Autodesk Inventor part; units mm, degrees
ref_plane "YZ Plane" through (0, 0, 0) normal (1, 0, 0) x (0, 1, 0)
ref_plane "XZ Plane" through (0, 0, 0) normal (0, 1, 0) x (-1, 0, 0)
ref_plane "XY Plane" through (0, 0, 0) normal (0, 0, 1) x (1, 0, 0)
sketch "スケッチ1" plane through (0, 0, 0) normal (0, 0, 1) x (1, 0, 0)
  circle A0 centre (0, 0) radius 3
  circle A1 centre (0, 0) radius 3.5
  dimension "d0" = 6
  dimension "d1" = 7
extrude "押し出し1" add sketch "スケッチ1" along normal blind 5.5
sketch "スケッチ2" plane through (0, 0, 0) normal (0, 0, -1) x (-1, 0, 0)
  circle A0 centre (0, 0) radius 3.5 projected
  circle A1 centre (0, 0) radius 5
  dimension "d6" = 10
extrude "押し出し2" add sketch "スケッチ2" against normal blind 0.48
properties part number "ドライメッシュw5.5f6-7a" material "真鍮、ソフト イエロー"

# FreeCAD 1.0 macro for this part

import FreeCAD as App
import Part
import Sketcher

V = App.Vector
Q = App.Units.Quantity

doc = App.newDocument("Part")
params = doc.addObject("Spreadsheet::Sheet", "Params")
for row, (alias, value) in enumerate([
    ("sketch1_diameter", "7 mm"),
    ("sketch1_diameter2", "6 mm"),
    ("pad1_length", "5.5 mm"),
    ("sketch2_diameter", "10 mm"),
    ("sketch2_diameter2", "7 mm"),
    ("pad2_length", "0.48 mm"),
], start=1):
    params.set(f"A{row}", alias)
    params.set(f"B{row}", "=" + value)
    params.setAlias(f"B{row}", alias)

body = doc.addObject("PartDesign::Body", "Body")

sketch1 = body.newObject("Sketcher::SketchObject", "Sketch")
sketch1.AttachmentSupport = (doc.getObject("XY_Plane"), [""])
sketch1.MapMode = "FlatFace"
sketch1.addGeometry(Part.Circle(V(0, 0, 0), V(0, 0, 1), 3.5), False)
sketch1.addGeometry(Part.Circle(V(0, 0, 0), V(0, 0, 1), 3), False)
sketch1.addConstraint(Sketcher.Constraint("Coincident", 0, 3, -1, 1))
sketch1.addConstraint(Sketcher.Constraint("Coincident", 1, 3, -1, 1))
sketch1.addConstraint(Sketcher.Constraint("Diameter", 0, Q("7 mm")))
sketch1.addConstraint(Sketcher.Constraint("Diameter", 1, Q("6 mm")))
sketch1.setExpression("Constraints[2]", "Params.sketch1_diameter")
sketch1.setExpression("Constraints[3]", "Params.sketch1_diameter2")
pad1 = body.newObject("PartDesign::Pad", "Pad")
pad1.Profile = sketch1
pad1.setExpression("Length", "Params.pad1_length")

sketch2 = body.newObject("Sketcher::SketchObject", "Sketch001")
sketch2.AttachmentSupport = (doc.getObject("XY_Plane"), [""])
sketch2.MapMode = "FlatFace"
sketch2.addGeometry(Part.Circle(V(0, 0, 0), V(0, 0, 1), 5), False)
sketch2.addGeometry(Part.Circle(V(0, 0, 0), V(0, 0, 1), 3.5), False)
sketch2.addConstraint(Sketcher.Constraint("Coincident", 0, 3, -1, 1))
sketch2.addConstraint(Sketcher.Constraint("Coincident", 1, 3, -1, 1))
sketch2.addConstraint(Sketcher.Constraint("Diameter", 0, Q("10 mm")))
sketch2.addConstraint(Sketcher.Constraint("Diameter", 1, Q("7 mm")))
sketch2.setExpression("Constraints[2]", "Params.sketch2_diameter")
sketch2.setExpression("Constraints[3]", "Params.sketch2_diameter2")
pad2 = body.newObject("PartDesign::Pad", "Pad001")
pad2.Profile = sketch2
pad2.setExpression("Length", "Params.pad2_length")

doc.recompute()
